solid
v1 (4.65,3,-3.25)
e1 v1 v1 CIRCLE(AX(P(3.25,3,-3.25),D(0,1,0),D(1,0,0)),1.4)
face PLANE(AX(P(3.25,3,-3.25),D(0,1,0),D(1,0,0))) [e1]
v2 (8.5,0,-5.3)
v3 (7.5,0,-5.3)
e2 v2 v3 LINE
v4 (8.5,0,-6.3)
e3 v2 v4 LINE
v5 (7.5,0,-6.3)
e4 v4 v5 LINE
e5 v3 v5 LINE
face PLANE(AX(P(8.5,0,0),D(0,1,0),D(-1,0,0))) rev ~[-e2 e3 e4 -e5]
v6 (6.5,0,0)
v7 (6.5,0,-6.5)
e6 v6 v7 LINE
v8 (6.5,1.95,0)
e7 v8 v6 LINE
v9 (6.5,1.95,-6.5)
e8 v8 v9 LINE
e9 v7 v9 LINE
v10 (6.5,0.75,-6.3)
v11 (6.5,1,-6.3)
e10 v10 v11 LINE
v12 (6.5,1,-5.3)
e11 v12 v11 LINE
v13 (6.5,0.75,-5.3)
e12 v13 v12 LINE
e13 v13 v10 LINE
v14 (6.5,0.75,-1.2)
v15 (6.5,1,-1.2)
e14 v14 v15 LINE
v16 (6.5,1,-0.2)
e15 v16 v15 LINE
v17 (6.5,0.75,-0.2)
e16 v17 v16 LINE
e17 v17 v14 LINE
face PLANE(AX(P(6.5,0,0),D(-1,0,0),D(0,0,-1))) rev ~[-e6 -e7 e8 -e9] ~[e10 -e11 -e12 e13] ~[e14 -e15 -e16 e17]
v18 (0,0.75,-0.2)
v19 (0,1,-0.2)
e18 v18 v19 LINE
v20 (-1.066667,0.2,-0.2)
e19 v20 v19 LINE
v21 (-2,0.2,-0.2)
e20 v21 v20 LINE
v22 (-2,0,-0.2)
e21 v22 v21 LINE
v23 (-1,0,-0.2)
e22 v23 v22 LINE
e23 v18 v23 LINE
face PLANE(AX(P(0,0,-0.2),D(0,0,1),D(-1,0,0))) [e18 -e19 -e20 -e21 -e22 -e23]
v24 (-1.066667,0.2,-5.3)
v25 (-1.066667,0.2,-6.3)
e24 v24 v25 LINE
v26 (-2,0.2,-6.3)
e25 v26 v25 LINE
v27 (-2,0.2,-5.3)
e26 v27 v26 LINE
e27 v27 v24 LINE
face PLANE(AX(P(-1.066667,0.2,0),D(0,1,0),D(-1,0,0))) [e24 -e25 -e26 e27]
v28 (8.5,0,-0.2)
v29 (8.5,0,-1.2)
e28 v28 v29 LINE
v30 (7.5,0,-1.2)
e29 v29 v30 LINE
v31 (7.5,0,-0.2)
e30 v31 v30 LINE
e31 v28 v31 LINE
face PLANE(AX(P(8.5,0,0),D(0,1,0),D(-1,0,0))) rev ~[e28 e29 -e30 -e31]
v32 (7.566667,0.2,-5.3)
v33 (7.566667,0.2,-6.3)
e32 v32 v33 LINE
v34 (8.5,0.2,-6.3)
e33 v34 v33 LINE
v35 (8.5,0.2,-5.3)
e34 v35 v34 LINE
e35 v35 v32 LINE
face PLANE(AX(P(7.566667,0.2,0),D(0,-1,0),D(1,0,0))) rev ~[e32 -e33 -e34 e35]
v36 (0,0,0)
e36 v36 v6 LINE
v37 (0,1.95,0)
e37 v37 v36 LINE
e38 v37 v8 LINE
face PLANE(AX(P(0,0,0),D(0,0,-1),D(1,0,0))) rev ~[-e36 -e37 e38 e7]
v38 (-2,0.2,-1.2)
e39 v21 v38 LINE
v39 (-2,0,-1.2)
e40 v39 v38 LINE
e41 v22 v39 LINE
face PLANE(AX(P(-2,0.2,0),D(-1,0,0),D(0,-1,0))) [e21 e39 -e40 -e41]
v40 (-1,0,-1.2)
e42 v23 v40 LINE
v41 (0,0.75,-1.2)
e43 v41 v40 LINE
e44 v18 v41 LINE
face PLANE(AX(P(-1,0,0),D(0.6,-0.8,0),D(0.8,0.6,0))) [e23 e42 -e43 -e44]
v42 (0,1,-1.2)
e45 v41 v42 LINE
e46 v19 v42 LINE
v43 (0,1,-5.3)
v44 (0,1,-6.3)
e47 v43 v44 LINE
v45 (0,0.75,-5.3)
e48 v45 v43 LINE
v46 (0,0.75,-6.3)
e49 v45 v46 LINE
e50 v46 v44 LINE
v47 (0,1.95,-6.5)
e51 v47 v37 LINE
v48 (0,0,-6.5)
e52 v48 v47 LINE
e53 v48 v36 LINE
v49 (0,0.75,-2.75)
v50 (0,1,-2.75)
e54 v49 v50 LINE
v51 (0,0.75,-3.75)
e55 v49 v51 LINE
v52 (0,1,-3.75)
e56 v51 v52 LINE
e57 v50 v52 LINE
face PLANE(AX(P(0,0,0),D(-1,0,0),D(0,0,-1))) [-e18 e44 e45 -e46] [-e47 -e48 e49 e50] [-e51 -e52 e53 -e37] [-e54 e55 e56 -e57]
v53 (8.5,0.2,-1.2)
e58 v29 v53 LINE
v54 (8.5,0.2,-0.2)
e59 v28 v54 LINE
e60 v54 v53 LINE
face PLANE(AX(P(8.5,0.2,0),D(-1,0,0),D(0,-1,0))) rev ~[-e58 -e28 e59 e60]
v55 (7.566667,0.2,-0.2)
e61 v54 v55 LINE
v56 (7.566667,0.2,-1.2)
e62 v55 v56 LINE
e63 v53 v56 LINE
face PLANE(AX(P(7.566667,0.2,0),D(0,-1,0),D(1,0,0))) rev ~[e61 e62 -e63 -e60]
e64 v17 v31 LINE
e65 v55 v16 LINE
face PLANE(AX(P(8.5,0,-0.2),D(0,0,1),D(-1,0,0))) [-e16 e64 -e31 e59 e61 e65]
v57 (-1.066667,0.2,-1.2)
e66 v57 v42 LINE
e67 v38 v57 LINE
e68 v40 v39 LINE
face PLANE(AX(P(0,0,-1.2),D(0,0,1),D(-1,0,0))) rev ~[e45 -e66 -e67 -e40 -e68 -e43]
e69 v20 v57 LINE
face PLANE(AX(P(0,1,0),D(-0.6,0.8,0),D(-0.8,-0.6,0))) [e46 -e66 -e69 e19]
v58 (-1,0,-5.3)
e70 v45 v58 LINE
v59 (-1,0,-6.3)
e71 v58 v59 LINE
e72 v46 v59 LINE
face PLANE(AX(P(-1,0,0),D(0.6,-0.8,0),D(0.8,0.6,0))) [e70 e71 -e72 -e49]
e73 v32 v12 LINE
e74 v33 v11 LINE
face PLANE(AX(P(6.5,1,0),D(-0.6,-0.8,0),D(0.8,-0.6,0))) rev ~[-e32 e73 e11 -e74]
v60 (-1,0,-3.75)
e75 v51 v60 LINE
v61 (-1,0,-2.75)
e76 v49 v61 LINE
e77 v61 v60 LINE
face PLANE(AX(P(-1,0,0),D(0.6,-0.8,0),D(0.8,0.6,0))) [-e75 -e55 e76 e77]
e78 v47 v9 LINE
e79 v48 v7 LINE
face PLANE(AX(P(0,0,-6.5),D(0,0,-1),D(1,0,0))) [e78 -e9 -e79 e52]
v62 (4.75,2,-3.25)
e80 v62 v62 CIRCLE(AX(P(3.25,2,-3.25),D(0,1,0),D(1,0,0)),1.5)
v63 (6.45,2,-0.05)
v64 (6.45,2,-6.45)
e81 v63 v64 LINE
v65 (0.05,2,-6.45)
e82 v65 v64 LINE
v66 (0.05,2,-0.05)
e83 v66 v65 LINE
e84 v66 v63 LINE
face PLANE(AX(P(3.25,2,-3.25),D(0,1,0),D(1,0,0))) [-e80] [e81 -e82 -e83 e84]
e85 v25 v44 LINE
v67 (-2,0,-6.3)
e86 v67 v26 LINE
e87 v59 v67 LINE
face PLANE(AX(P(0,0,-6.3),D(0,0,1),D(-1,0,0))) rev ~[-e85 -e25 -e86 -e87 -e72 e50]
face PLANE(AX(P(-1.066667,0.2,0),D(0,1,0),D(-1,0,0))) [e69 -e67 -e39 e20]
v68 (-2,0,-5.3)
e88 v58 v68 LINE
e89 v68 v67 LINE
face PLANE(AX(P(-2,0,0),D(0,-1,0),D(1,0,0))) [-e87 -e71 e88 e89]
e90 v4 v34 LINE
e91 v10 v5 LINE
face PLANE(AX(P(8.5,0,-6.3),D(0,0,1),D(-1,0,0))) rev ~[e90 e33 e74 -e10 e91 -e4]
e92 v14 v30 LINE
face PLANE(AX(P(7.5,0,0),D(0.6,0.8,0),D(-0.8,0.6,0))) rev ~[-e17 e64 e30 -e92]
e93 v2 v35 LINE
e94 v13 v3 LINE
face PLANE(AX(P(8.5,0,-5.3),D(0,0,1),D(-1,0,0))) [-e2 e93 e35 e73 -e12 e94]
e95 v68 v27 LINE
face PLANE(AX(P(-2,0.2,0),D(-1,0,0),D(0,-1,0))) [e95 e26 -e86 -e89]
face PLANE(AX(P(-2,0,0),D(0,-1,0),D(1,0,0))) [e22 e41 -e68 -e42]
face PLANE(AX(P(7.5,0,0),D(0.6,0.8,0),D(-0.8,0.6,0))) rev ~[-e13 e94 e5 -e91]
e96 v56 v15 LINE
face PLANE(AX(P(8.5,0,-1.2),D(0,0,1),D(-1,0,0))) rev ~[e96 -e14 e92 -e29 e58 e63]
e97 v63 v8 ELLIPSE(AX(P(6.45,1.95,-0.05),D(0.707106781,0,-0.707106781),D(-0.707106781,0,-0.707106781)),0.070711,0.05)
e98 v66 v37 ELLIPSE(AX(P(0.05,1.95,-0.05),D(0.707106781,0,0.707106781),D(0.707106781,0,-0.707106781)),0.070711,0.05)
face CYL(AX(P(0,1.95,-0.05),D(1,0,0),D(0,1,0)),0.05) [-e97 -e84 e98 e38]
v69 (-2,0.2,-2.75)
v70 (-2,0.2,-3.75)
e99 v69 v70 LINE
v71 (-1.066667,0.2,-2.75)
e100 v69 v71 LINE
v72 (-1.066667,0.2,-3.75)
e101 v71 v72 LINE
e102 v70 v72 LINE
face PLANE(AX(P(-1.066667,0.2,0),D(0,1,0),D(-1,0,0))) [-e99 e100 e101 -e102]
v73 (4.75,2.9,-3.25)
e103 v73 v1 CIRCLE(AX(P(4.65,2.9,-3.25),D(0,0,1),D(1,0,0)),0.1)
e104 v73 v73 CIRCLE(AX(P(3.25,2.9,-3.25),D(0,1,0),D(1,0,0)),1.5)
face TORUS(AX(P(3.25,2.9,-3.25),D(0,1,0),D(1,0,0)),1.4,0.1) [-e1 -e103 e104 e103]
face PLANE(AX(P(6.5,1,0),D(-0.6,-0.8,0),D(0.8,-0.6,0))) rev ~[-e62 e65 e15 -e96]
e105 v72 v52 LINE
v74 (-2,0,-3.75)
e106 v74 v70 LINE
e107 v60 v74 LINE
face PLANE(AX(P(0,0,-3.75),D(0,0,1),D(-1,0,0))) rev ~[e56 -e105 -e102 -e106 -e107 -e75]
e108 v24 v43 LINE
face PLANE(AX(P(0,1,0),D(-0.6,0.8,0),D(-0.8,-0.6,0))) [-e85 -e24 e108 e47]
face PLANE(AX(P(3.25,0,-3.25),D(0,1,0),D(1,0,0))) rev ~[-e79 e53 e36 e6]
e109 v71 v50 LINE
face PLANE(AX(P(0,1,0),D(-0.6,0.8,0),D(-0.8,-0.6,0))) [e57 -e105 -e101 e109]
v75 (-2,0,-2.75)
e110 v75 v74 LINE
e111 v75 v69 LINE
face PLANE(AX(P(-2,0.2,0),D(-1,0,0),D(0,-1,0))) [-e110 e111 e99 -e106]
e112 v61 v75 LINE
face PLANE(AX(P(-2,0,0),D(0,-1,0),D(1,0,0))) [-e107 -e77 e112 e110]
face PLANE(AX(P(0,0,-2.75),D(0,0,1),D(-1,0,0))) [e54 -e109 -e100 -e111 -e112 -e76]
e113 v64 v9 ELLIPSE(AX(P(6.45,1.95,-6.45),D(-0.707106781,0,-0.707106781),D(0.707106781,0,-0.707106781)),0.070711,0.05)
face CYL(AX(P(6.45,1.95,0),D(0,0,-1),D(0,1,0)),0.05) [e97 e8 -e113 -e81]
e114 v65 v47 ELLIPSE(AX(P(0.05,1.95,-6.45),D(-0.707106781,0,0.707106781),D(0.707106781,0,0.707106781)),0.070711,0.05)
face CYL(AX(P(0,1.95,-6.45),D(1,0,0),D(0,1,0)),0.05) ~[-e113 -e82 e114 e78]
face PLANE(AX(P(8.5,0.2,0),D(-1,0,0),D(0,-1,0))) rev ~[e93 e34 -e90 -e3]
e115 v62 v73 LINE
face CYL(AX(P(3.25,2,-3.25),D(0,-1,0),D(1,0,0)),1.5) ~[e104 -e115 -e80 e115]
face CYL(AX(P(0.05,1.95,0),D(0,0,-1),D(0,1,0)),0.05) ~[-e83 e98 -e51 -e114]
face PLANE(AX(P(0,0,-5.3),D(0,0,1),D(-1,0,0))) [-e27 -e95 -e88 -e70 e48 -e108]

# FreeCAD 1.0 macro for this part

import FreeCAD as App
import Part
import Sketcher

V = App.Vector
Q = App.Units.Quantity


def edges_at(feature, points):
    """Names of the edges that pass closest to the given points."""
    edges = feature.Shape.Edges
    near = lambda p: min(range(len(edges)), key=lambda i: edges[i].distToShape(Part.Vertex(*p))[0])
    return sorted({f"Edge{near(p) + 1}" for p in points})


def add_polygon(sketch, points):
    """Adds a closed chain of lines whose ends are joined by coincident constraints."""
    first, n = sketch.GeometryCount, len(points)
    for a, b in zip(points, points[1:] + points[:1]):
        sketch.addGeometry(Part.LineSegment(App.Vector(*a, 0), App.Vector(*b, 0)), False)
    for i in range(n):
        sketch.addConstraint(Sketcher.Constraint("Coincident", first + i, 2, first + (i + 1) % n, 1))

doc = App.newDocument("Part")
body = doc.addObject("PartDesign::Body", "Body")

sketch1 = body.newObject("Sketcher::SketchObject", "Sketch")
sketch1.AttachmentSupport = (doc.getObject("XZ_Plane"), [""])
sketch1.MapMode = "FlatFace"
add_polygon(sketch1, [(0, -6), (0, 0), (6, 0), (6, -6)])
sketch1.addConstraint([
    Sketcher.Constraint("Vertical", 0),
    Sketcher.Constraint("Horizontal", 1),
    Sketcher.Constraint("Vertical", 2),
    Sketcher.Constraint("Horizontal", 3),
    Sketcher.Constraint("Coincident", 0, 2, -1, 1),
    Sketcher.Constraint("Equal", 3, 0),
    Sketcher.Constraint("DistanceX", 1, 1, 1, 2, Q("6.5 mm")),
])
pad1 = body.newObject("PartDesign::Pad", "Pad")
pad1.Profile = sketch1
pad1.Length = 2
pad1.Reversed = True

sketch2 = body.newObject("Sketcher::SketchObject", "Sketch001")
sketch2.AttachmentSupport = (doc.getObject("XZ_Plane"), [""])
sketch2.MapMode = "FlatFace"
sketch2.AttachmentOffset = App.Placement(V(0, 0, -2), App.Rotation())
sketch2.addGeometry(Part.Circle(V(3.2, -3.2, 0), V(0, 0, 1), 1.5), False)
sketch2.addConstraint([
    Sketcher.Constraint("Diameter", 0, Q("3 mm")),
    Sketcher.Constraint("DistanceX", -1, 1, 0, 3, Q("3.25 mm")),
    Sketcher.Constraint("DistanceY", 0, 3, -1, 1, Q("3.25 mm")),
])
pad2 = body.newObject("PartDesign::Pad", "Pad001")
pad2.Profile = sketch2
pad2.Length = 1
pad2.Reversed = True
doc.recompute()

fillet = body.newObject("PartDesign::Fillet", "Fillet")
fillet.Base = (pad2, edges_at(pad2, [(1.75, 3, -3.25)]))
fillet.Radius = 0.1
doc.recompute()

fillet2 = body.newObject("PartDesign::Fillet", "Fillet001")
fillet2.Base = (fillet, edges_at(fillet, [
    (6.5, 2, -3.25),
    (3.25, 2, -6.5),
    (0, 2, -3.25),
    (3.25, 2, 0),
]))
fillet2.Radius = 0.05

sketch3 = body.newObject("Sketcher::SketchObject", "Sketch002")
sketch3.AttachmentSupport = (doc.getObject("XY_Plane"), [""])
sketch3.MapMode = "FlatFace"
add_polygon(sketch3, [(7.57, 0.2), (6.5, 1), (6.5, 0.75), (7.5, 0), (8.5, 0), (8.5, 0.2)])
add_polygon(sketch3, [(-2, 0), (-1, 0), (0, 0.75), (0, 1), (-1.07, 0.2), (-2, 0.2)])
sketch3.addConstraint([
    Sketcher.Constraint("Vertical", 1),
    Sketcher.Constraint("Horizontal", 3),
    Sketcher.Constraint("Vertical", 4),
    Sketcher.Constraint("Horizontal", 5),
    Sketcher.Constraint("Horizontal", 6),
    Sketcher.Constraint("Vertical", 8),
    Sketcher.Constraint("Horizontal", 10),
    Sketcher.Constraint("Vertical", 11),
    Sketcher.Constraint("PointOnObject", 2, 2, -1),
    Sketcher.Constraint("PointOnObject", 6, 2, -1),
    Sketcher.Constraint("PointOnObject", 7, 2, -2),
    Sketcher.Constraint("Parallel", 0, 2),
    Sketcher.Constraint("Parallel", 7, 9),
    Sketcher.Constraint("Horizontal", 1, 2, 7, 2),
    Sketcher.Constraint("Horizontal", 0, 2, 8, 2),
    Sketcher.Constraint("Horizontal", 5, 2, 9, 2),
    Sketcher.Constraint("Equal", 3, 6),
    Sketcher.Constraint("Equal", 5, 10),
    Sketcher.Constraint("DistanceX", 3, 1, 3, 2, Q("1 mm")),
    Sketcher.Constraint("DistanceY", 4, 1, 4, 2, Q("0.2 mm")),
    Sketcher.Constraint("DistanceY", -1, 1, 0, 2, Q("1 mm")),
    Sketcher.Constraint("DistanceX", 6, 2, -1, 1, Q("1 mm")),
    Sketcher.Constraint("DistanceY", 1, 2, 1, 1, Q("0.25 mm")),
    Sketcher.Constraint("DistanceX", -1, 1, 0, 2, Q("6.5 mm")),
])
pad3 = body.newObject("PartDesign::Pad", "Pad002")
pad3.Profile = sketch3
pad3.Type = "UpToLast"
pad3.Reversed = True

sketch4 = body.newObject("Sketcher::SketchObject", "Sketch003")
sketch4.AttachmentSupport = (doc.getObject("XZ_Plane"), [""])
sketch4.MapMode = "FlatFace"
add_polygon(sketch4, [(0, -2.75), (0, -1.2), (-2, -1.2), (-2, -2.75)])
add_polygon(sketch4, [(0, -5.3), (0, -3.75), (-2, -3.75), (-2, -5.3)])
add_polygon(sketch4, [(8.5, -5.3), (8.5, -1.2), (6.5, -1.2), (6.5, -5.3)])
add_polygon(sketch4, [(0, -0.2), (0, 0), (-2, 0), (-2, -0.2)])
add_polygon(sketch4, [(0, -6.5), (0, -6.3), (-2, -6.3), (-2, -6.5)])
add_polygon(sketch4, [(8.5, -6.5), (8.5, -6.3), (6.5, -6.3), (6.5, -6.5)])
add_polygon(sketch4, [(8.5, -0.2), (8.5, 0), (6.5, 0), (6.5, -0.2)])
sketch4.addConstraint([
    Sketcher.Constraint("Vertical", 0),
    Sketcher.Constraint("Horizontal", 1),
    Sketcher.Constraint("Vertical", 2),
    Sketcher.Constraint("Horizontal", 3),
    Sketcher.Constraint("Vertical", 4),
    Sketcher.Constraint("Horizontal", 5),
    Sketcher.Constraint("Vertical", 6),
    Sketcher.Constraint("Horizontal", 7),
    Sketcher.Constraint("Vertical", 8),
    Sketcher.Constraint("Horizontal", 9),
    Sketcher.Constraint("Vertical", 10),
    Sketcher.Constraint("Horizontal", 11),
    Sketcher.Constraint("Vertical", 12),
    Sketcher.Constraint("Horizontal", 13),
    Sketcher.Constraint("Vertical", 14),
    Sketcher.Constraint("Horizontal", 15),
    Sketcher.Constraint("Vertical", 16),
    Sketcher.Constraint("Horizontal", 17),
    Sketcher.Constraint("Vertical", 18),
    Sketcher.Constraint("Horizontal", 19),
    Sketcher.Constraint("Vertical", 20),
    Sketcher.Constraint("Horizontal", 21),
    Sketcher.Constraint("Vertical", 22),
    Sketcher.Constraint("Horizontal", 23),
    Sketcher.Constraint("Vertical", 24),
    Sketcher.Constraint("Horizontal", 25),
    Sketcher.Constraint("Vertical", 26),
    Sketcher.Constraint("Horizontal", 27),
    Sketcher.Constraint("Coincident", 12, 2, -1, 1),
    Sketcher.Constraint("PointOnObject", 0, 2, -2),
    Sketcher.Constraint("PointOnObject", 4, 2, -2),
    Sketcher.Constraint("PointOnObject", 16, 2, -2),
    Sketcher.Constraint("PointOnObject", 24, 2, -1),
    Sketcher.Constraint("Horizontal", 1, 2, 8, 2),
    Sketcher.Constraint("Horizontal", 7, 2, 10, 2),
    Sketcher.Constraint("Horizontal", 17, 2, 20, 2),
    Sketcher.Constraint("Horizontal", 19, 2, 22, 2),
    Sketcher.Constraint("Horizontal", 15, 2, 26, 2),
    Sketcher.Constraint("Vertical", 2, 2, 5, 2),
    Sketcher.Constraint("Vertical", 6, 2, 13, 2),
    Sketcher.Constraint("Vertical", 14, 2, 17, 2),
    Sketcher.Constraint("Vertical", 11, 2, 20, 2),
    Sketcher.Constraint("Vertical", 10, 2, 21, 2),
    Sketcher.Constraint("Vertical", 23, 2, 24, 2),
    Sketcher.Constraint("Vertical", 22, 2, 25, 2),
    Sketcher.Constraint("Equal", 7, 9),
    Sketcher.Constraint("Equal", 2, 4),
    Sketcher.Constraint("Equal", 14, 16),
    Sketcher.Constraint("DistanceX", 1, 2, 1, 1, Q("2 mm")),
    Sketcher.Constraint("DistanceY", 8, 1, 8, 2, Q("4.1 mm")),
    Sketcher.Constraint("DistanceY", 12, 1, 12, 2, Q("0.2 mm")),
    Sketcher.Constraint("DistanceY", 4, 2, 3, 2, Q("1 mm")),
    Sketcher.Constraint("DistanceY", 1, 2, 14, 2, Q("1 mm")),
    Sketcher.Constraint("DistanceY", 16, 2, 7, 2, Q("1 mm")),
    Sketcher.Constraint("DistanceX", -1, 1, 8, 2, Q("8.5 mm")),
])
pocket1 = body.newObject("PartDesign::Pocket", "Pocket")
pocket1.Profile = sketch4
pocket1.Type = "ThroughAll"

doc.recompute()
